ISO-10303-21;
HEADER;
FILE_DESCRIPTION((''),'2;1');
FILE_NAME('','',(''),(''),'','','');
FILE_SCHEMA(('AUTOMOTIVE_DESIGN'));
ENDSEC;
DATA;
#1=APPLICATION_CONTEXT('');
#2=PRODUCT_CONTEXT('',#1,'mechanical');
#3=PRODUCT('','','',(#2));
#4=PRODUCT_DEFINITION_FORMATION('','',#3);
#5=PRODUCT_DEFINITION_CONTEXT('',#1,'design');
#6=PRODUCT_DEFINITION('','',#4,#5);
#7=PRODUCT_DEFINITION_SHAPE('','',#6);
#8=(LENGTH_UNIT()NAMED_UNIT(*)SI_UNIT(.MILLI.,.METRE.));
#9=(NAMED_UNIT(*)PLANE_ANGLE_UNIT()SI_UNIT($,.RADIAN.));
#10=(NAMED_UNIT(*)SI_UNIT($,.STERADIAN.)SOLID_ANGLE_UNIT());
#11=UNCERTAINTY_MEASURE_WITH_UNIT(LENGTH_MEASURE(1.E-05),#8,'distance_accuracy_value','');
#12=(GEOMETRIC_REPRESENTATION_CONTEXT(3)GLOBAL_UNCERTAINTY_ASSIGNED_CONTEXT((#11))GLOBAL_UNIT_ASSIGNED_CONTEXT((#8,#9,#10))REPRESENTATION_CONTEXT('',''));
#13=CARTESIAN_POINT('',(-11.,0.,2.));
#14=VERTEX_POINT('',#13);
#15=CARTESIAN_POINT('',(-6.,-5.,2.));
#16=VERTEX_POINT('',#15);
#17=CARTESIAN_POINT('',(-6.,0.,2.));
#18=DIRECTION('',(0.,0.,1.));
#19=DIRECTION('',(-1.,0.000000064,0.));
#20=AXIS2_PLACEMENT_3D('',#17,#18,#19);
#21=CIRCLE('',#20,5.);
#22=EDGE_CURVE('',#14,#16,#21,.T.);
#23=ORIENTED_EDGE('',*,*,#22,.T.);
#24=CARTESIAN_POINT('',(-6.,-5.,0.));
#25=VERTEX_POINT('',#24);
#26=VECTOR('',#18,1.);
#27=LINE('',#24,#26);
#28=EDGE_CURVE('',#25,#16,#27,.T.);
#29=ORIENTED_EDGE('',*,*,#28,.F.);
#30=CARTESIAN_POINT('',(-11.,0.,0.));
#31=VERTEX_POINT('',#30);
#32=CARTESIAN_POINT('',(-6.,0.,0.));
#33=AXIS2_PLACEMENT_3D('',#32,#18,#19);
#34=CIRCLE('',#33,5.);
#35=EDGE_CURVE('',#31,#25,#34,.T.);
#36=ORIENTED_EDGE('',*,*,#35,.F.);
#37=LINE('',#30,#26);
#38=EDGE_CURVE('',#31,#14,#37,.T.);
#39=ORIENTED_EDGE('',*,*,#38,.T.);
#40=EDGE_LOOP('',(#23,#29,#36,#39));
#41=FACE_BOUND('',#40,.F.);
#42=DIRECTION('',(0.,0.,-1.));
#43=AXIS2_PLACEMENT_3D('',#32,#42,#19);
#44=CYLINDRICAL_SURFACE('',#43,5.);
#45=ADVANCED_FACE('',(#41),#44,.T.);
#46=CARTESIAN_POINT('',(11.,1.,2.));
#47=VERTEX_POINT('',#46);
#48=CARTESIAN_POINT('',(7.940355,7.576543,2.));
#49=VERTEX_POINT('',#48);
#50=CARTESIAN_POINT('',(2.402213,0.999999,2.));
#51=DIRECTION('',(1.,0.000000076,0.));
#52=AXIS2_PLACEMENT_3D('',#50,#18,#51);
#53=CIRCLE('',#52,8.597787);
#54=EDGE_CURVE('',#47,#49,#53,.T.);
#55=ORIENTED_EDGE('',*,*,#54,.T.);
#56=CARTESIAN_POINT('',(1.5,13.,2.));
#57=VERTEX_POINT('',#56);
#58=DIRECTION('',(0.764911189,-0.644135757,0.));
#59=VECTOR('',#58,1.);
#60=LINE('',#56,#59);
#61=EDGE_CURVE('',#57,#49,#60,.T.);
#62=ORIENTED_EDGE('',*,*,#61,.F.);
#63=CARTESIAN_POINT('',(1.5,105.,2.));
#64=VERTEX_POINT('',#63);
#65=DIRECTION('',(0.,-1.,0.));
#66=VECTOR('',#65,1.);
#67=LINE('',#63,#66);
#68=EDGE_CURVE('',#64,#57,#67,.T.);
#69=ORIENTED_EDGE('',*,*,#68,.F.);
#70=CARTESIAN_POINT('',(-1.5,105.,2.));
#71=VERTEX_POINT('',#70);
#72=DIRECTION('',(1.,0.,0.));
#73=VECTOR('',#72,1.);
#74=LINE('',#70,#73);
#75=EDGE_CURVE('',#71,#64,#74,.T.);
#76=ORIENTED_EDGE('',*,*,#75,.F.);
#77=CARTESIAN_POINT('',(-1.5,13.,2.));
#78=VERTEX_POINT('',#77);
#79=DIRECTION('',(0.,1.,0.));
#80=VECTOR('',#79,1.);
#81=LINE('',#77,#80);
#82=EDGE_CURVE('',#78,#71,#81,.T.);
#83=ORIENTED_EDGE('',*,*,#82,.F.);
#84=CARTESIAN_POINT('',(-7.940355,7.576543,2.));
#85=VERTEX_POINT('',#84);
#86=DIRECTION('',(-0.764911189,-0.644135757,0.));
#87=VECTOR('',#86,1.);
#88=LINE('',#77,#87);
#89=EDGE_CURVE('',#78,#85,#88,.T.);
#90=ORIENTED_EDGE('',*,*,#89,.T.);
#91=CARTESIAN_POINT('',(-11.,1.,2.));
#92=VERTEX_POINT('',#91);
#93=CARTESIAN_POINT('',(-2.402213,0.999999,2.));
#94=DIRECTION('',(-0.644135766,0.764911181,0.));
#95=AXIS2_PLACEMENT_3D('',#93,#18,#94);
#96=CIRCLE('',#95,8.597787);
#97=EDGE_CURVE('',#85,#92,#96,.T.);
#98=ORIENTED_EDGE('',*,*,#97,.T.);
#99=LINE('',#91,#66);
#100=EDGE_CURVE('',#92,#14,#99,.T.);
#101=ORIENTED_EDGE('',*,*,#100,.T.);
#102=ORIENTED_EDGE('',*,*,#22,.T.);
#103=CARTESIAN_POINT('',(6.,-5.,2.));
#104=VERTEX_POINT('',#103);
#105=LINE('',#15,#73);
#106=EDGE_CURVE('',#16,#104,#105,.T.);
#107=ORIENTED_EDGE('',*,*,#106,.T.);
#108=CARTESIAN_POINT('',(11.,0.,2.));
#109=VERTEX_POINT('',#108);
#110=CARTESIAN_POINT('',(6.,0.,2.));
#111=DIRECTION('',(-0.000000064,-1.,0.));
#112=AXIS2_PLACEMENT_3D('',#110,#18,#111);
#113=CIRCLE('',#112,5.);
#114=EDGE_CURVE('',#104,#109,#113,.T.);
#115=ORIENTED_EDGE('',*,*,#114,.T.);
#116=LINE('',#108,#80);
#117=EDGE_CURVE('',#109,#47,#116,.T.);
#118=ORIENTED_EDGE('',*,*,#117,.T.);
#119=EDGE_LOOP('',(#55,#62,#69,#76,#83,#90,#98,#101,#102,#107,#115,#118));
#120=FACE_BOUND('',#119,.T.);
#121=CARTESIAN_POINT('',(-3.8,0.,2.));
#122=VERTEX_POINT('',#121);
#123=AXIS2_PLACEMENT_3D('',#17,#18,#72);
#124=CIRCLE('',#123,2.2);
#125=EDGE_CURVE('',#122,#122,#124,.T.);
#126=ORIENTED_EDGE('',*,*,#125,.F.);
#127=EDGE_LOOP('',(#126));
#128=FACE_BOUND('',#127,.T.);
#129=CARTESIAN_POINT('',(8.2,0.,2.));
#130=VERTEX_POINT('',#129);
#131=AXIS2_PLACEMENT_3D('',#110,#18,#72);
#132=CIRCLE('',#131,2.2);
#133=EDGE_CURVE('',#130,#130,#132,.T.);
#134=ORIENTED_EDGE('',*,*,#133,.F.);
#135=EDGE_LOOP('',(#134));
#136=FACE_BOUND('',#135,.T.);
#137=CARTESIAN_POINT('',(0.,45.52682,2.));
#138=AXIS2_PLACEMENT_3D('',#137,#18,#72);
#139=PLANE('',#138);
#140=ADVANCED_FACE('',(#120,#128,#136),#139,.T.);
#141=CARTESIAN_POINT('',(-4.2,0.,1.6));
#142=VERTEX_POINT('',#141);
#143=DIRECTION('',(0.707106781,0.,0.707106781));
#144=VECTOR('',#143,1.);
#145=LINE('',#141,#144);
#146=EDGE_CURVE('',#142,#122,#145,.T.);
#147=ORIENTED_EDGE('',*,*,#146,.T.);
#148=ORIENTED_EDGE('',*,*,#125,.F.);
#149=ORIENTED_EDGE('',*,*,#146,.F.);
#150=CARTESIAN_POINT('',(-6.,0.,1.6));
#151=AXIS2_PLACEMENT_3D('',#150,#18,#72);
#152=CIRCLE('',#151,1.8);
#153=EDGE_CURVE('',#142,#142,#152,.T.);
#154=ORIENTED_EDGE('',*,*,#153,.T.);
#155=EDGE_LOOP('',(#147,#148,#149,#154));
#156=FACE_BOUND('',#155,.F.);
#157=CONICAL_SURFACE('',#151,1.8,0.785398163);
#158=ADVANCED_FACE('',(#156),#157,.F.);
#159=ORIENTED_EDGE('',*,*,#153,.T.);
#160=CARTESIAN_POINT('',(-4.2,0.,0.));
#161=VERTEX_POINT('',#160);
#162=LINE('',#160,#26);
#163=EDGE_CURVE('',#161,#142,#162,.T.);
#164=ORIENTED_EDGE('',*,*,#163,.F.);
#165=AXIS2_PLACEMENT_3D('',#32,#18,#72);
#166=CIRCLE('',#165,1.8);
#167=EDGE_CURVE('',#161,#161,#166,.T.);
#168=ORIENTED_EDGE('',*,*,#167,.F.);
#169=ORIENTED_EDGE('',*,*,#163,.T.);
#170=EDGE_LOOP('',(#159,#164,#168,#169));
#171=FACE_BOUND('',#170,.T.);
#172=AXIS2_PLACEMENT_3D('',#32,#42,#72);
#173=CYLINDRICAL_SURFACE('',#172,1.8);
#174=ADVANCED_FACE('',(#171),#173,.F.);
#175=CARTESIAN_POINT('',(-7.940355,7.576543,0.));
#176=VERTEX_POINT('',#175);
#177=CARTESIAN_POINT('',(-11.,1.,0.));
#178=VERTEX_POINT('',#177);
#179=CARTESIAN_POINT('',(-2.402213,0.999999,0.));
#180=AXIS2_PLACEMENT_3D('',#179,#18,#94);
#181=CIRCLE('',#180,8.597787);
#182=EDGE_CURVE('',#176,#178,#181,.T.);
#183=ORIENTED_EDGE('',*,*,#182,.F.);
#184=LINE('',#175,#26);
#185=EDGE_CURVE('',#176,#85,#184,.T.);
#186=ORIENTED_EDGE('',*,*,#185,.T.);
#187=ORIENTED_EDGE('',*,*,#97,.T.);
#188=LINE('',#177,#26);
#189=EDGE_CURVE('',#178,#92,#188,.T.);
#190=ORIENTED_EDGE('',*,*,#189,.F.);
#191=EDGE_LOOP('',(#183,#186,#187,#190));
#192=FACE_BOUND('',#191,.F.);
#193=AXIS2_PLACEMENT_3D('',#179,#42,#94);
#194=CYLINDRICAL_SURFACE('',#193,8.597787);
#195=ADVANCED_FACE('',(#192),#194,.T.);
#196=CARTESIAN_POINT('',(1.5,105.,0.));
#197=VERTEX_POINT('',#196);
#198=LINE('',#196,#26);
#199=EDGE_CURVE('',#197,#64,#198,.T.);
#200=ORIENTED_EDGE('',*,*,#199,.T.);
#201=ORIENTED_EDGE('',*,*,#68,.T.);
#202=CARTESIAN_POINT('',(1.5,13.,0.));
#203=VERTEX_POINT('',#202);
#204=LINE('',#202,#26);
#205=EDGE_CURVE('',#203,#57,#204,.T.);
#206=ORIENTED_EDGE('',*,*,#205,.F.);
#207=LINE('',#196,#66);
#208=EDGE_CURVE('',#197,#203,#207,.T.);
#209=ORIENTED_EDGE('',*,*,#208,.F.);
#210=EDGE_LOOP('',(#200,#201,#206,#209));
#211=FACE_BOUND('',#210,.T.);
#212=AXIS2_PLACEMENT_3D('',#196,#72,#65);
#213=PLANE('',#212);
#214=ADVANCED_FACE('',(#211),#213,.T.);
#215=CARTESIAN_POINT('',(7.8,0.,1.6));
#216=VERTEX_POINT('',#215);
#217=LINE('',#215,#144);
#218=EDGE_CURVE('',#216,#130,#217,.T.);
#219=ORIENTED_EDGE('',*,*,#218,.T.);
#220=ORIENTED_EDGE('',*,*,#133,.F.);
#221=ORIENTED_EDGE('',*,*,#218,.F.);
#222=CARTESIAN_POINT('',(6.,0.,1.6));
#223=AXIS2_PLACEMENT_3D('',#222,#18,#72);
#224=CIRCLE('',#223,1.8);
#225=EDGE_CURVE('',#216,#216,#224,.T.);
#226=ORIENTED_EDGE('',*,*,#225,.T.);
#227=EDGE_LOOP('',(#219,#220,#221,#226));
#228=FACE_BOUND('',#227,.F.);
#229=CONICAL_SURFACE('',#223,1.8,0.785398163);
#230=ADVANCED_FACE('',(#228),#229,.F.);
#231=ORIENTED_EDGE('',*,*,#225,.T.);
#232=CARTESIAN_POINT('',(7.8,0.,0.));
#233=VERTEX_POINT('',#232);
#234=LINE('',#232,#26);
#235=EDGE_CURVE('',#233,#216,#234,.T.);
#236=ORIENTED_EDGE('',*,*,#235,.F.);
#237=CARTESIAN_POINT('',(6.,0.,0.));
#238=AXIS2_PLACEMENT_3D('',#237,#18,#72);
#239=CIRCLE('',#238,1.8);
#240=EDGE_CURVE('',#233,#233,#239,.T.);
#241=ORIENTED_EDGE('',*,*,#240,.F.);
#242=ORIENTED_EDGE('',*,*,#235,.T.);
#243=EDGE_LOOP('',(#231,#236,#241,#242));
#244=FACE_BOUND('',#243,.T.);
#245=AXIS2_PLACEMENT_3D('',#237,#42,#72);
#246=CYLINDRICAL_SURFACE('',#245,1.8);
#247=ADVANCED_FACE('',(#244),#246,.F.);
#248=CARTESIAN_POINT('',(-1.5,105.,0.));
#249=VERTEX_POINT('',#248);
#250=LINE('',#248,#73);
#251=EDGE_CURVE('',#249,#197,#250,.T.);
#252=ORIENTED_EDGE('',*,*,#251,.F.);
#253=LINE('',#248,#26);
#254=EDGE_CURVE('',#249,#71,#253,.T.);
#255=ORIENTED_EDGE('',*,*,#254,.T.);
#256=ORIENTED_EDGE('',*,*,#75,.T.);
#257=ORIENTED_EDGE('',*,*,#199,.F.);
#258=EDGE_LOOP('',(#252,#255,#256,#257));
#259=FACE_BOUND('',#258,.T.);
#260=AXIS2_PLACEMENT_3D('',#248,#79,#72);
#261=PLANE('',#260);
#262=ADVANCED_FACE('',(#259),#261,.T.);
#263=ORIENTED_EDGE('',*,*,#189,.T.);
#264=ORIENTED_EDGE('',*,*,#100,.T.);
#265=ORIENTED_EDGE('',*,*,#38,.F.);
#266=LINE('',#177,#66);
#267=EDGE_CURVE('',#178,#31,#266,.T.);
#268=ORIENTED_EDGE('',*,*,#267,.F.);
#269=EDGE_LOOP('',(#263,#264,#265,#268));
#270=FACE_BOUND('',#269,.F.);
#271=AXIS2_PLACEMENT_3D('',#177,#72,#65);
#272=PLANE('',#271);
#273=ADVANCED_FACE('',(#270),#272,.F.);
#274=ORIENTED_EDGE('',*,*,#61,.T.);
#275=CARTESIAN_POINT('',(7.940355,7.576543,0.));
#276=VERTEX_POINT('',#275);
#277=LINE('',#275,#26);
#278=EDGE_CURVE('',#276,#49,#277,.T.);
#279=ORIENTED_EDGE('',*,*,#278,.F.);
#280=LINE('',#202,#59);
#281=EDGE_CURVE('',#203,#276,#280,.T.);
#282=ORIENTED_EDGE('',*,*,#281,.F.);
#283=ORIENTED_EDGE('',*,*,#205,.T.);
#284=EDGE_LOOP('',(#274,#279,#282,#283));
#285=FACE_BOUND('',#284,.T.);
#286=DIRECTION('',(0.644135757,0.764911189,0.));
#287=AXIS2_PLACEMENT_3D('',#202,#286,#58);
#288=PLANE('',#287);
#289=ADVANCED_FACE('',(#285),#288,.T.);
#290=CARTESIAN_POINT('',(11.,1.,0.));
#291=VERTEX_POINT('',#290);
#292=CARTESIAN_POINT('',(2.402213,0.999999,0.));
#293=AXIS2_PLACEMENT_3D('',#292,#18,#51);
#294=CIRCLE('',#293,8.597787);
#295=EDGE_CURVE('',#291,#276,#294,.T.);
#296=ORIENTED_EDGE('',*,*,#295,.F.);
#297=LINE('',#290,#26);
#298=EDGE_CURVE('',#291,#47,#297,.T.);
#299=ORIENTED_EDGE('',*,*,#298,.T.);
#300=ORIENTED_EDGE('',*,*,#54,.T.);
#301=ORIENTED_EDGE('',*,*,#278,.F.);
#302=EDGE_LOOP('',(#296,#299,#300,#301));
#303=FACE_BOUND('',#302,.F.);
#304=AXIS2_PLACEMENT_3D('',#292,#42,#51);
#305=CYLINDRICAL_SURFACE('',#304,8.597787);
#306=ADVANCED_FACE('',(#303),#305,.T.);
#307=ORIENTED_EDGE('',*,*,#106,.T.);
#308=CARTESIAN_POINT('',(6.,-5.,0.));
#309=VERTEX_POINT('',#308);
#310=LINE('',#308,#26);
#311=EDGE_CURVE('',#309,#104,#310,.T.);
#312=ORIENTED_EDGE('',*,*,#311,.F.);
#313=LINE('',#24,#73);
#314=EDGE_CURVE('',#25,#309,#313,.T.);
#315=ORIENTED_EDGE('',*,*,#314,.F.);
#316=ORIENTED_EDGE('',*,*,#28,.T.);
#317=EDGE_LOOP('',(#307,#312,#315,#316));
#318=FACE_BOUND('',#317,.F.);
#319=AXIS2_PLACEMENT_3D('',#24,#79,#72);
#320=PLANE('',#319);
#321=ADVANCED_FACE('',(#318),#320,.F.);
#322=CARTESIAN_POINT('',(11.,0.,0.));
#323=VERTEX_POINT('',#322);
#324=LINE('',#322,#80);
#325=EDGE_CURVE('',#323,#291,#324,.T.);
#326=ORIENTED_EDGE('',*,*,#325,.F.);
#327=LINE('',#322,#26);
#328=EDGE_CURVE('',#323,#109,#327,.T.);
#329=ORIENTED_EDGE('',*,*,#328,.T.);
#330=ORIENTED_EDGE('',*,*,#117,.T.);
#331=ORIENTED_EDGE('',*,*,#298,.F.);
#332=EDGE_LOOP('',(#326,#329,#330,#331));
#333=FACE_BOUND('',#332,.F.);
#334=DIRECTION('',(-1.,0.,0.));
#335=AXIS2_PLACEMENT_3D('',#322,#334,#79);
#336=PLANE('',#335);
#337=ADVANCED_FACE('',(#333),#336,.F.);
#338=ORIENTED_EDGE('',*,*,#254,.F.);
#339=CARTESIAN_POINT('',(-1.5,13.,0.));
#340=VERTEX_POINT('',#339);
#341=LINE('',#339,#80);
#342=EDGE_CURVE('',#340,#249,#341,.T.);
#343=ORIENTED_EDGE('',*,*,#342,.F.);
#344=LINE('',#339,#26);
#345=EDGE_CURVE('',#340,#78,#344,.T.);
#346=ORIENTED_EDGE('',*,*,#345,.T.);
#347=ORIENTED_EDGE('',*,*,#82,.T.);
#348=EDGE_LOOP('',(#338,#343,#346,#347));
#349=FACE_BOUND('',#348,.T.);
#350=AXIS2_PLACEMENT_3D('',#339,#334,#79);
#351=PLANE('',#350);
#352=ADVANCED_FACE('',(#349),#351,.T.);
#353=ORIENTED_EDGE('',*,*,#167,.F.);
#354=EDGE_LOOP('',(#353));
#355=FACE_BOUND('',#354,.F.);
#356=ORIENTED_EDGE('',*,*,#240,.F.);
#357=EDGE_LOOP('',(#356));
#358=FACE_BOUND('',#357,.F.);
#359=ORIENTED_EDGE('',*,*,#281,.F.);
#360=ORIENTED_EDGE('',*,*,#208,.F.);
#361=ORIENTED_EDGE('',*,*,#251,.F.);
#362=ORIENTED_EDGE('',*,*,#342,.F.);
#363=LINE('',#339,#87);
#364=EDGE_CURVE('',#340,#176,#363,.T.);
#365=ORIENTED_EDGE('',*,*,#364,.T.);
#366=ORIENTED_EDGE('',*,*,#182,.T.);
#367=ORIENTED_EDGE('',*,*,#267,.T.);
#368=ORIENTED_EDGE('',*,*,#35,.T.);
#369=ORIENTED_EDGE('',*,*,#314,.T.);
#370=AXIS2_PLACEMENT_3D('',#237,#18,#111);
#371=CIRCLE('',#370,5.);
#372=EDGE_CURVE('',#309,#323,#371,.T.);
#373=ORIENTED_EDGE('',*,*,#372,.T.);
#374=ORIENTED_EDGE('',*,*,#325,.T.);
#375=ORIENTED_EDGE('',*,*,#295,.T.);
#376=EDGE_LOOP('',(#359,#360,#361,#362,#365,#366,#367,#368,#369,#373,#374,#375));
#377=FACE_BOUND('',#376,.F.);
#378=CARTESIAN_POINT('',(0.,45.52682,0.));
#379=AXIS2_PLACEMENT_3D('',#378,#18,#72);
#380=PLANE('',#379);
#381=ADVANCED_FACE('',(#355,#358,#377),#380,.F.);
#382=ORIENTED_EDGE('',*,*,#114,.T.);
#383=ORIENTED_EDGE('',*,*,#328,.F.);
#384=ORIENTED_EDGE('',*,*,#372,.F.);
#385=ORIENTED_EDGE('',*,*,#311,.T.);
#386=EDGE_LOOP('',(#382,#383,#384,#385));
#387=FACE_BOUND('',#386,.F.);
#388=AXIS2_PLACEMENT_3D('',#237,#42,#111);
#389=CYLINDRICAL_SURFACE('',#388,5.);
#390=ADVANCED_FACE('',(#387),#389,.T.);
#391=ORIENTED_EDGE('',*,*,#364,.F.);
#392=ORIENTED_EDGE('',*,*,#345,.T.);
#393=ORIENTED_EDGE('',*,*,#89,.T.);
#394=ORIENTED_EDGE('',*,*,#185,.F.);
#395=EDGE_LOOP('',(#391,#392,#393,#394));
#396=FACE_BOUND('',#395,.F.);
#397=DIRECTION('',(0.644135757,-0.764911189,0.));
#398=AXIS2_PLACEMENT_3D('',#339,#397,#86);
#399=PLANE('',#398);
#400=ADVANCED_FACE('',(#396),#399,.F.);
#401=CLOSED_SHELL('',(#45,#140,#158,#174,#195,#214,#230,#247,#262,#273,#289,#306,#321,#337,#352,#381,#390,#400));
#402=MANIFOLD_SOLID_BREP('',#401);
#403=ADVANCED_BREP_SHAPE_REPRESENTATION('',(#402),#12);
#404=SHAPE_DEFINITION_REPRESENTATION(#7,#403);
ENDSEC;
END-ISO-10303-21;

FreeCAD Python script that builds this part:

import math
import FreeCAD as App
import Part
import Sketcher

V = App.Vector


def edges_at(feature, points):
    """Names of the edges that pass closest to the given points."""
    edges = feature.Shape.Edges
    near = lambda p: min(range(len(edges)), key=lambda i: edges[i].distToShape(Part.Vertex(*p))[0])
    return sorted({f"Edge{near(p) + 1}" for p in points})

doc = App.newDocument("Part")
body = doc.addObject("PartDesign::Body", "Body")

sketch1 = body.newObject("Sketcher::SketchObject", "Sketch")
sketch1.AttachmentSupport = (doc.getObject("XY_Plane"), [""])
sketch1.MapMode = "FlatFace"
sketch1.addGeometry(Part.LineSegment(V(11, 0, 0), V(11, 1, 0)), False)
sketch1.addGeometry(Part.ArcOfCircle(Part.Circle(V(2.4, 1, 0), V(0, 0, 1), 8.6), math.radians(0), math.radians(50)), False)
sketch1.addGeometry(Part.LineSegment(V(7.9, 7.6, 0), V(1.5, 13, 0)), False)
sketch1.addGeometry(Part.LineSegment(V(1.5, 13, 0), V(1.5, 105, 0)), False)
sketch1.addGeometry(Part.LineSegment(V(1.5, 105, 0), V(-1.5, 105, 0)), False)
sketch1.addGeometry(Part.LineSegment(V(-1.5, 105, 0), V(-1.5, 13, 0)), False)
sketch1.addGeometry(Part.LineSegment(V(-1.5, 13, 0), V(-7.9, 7.6, 0)), False)
sketch1.addGeometry(Part.ArcOfCircle(Part.Circle(V(-2.4, 1, 0), V(0, 0, 1), 8.6), math.radians(130), math.radians(180)), False)
sketch1.addGeometry(Part.LineSegment(V(-11, 1, 0), V(-11, 0, 0)), False)
sketch1.addGeometry(Part.ArcOfCircle(Part.Circle(V(-6, 0, 0), V(0, 0, 1), 5), math.radians(180), math.radians(270)), False)
sketch1.addGeometry(Part.LineSegment(V(-6, -5, 0), V(6, -5, 0)), False)
sketch1.addGeometry(Part.ArcOfCircle(Part.Circle(V(6, 0, 0), V(0, 0, 1), 5), math.radians(-90), math.radians(0)), False)
sketch1.addGeometry(Part.Circle(V(-6, 0, 0), V(0, 0, 1), 1.8), False)
sketch1.addGeometry(Part.Circle(V(6, 0, 0), V(0, 0, 1), 1.8), False)
sketch1.addConstraint(Sketcher.Constraint("Tangent", 0, 2, 1, 1))
sketch1.addConstraint(Sketcher.Constraint("Tangent", 1, 2, 2, 1))
sketch1.addConstraint(Sketcher.Constraint("Coincident", 2, 2, 3, 1))
sketch1.addConstraint(Sketcher.Constraint("Coincident", 3, 2, 4, 1))
sketch1.addConstraint(Sketcher.Constraint("Coincident", 4, 2, 5, 1))
sketch1.addConstraint(Sketcher.Constraint("Coincident", 5, 2, 6, 1))
sketch1.addConstraint(Sketcher.Constraint("Tangent", 6, 2, 7, 1))
sketch1.addConstraint(Sketcher.Constraint("Tangent", 7, 2, 8, 1))
sketch1.addConstraint(Sketcher.Constraint("Tangent", 8, 2, 9, 1))
sketch1.addConstraint(Sketcher.Constraint("Tangent", 9, 2, 10, 1))
sketch1.addConstraint(Sketcher.Constraint("Tangent", 10, 2, 11, 1))
sketch1.addConstraint(Sketcher.Constraint("Tangent", 11, 2, 0, 1))
sketch1.addConstraint(Sketcher.Constraint("Vertical", 0))
sketch1.addConstraint(Sketcher.Constraint("Vertical", 3))
sketch1.addConstraint(Sketcher.Constraint("Horizontal", 4))
sketch1.addConstraint(Sketcher.Constraint("Vertical", 5))
sketch1.addConstraint(Sketcher.Constraint("Vertical", 8))
sketch1.addConstraint(Sketcher.Constraint("Horizontal", 10))
sketch1.addConstraint(Sketcher.Constraint("Coincident", 12, 3, 9, 3))
sketch1.addConstraint(Sketcher.Constraint("Coincident", 13, 3, 11, 3))
sketch1.addConstraint(Sketcher.Constraint("Equal", 1, 7))
sketch1.addConstraint(Sketcher.Constraint("Equal", 9, 11))
sketch1.addConstraint(Sketcher.Constraint("Equal", 12, 13))
sketch1.addConstraint(Sketcher.Constraint("Symmetric", 9, 3, 11, 3, -1, 1))
sketch1.addConstraint(Sketcher.Constraint("Symmetric", 2, 2, 5, 2, -2))
sketch1.addConstraint(Sketcher.Constraint("Horizontal", 1, 3, 7, 3))
sketch1.addConstraint(Sketcher.Constraint("Radius", 9, 5.0))
sketch1.addConstraint(Sketcher.Constraint("Diameter", 12, 3.6))
sketch1.addConstraint(Sketcher.Constraint("DistanceX", 4, 2, 4, 1, 3.0))
sketch1.addConstraint(Sketcher.Constraint("DistanceX", 10, 1, 10, 2, 12.0))
sketch1.addConstraint(Sketcher.Constraint("DistanceY", 0, 1, 0, 2, 1.0))
sketch1.addConstraint(Sketcher.Constraint("DistanceY", 3, 1, 3, 2, 92.0))
sketch1.addConstraint(Sketcher.Constraint("DistanceY", -1, 1, 2, 2, 13.0))
sketch1.addConstraint(Sketcher.Constraint("Radius", 1, 8.597787))
pad1 = body.newObject("PartDesign::Pad", "Pad")
pad1.Profile = sketch1
pad1.Length = 2
doc.recompute()

chamfer = body.newObject("PartDesign::Chamfer", "Chamfer")
chamfer.Base = (pad1, edges_at(pad1, [(-7.8, 0, 2), (4.2, 0, 2)]))
chamfer.Size = 0.4

doc.recompute()
